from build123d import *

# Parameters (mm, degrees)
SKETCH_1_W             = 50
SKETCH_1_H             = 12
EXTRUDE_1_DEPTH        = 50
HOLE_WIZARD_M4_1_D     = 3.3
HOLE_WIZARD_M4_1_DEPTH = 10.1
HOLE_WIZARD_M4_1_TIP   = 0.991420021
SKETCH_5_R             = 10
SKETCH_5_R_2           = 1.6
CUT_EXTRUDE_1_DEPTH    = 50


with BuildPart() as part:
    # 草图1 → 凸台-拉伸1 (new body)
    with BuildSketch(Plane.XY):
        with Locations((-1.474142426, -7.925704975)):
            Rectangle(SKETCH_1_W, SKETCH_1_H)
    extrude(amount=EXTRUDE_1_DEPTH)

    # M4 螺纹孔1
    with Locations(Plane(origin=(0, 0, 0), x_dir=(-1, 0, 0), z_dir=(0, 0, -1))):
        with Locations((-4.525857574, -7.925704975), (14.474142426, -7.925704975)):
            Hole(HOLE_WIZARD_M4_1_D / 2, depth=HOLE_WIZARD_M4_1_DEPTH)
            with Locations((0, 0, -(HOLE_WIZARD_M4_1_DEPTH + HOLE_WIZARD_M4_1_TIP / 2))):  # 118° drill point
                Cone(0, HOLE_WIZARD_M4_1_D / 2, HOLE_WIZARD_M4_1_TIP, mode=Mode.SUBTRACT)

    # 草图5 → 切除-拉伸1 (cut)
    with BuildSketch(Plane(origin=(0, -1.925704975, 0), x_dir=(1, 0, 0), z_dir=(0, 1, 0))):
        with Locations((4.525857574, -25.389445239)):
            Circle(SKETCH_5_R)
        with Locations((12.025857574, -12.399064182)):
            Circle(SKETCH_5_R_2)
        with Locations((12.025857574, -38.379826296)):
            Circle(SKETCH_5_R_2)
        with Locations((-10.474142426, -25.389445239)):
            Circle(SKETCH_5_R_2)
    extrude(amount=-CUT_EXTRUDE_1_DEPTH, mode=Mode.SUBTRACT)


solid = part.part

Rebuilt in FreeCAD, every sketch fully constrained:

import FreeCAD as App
import Part
import Sketcher
from FreeCAD import Vector


def add_polygon(sketch, points):
    """Adds a closed chain of lines whose ends are joined by coincident constraints."""
    first, n = sketch.GeometryCount, len(points)
    for a, b in zip(points, points[1:] + points[:1]):
        sketch.addGeometry(Part.LineSegment(App.Vector(*a, 0), App.Vector(*b, 0)), False)
    for i in range(n):
        sketch.addConstraint(Sketcher.Constraint("Coincident", first + i, 2, first + (i + 1) % n, 1))

doc = App.newDocument("Part")
body = doc.addObject("PartDesign::Body", "Body")

sketch1 = doc.addObject("Sketcher::SketchObject", "Sketch")
body.addObject(sketch1)
sketch1.AttachmentSupport = (doc.XY_Plane, [""])
sketch1.MapMode = "FlatFace"
add_polygon(sketch1, [(-26, -2), (-26, -14), (24, -14), (24, -2)])
sketch1.addConstraint([
    Sketcher.Constraint("Vertical", 0),
    Sketcher.Constraint("Horizontal", 1),
    Sketcher.Constraint("Vertical", 2),
    Sketcher.Constraint("Horizontal", 3),
    Sketcher.Constraint("DistanceX", 1, 1, 1, 2, 50.0),
    Sketcher.Constraint("DistanceY", 0, 2, 0, 1, 12.0),
    Sketcher.Constraint("DistanceX", 0, 2, -1, 1, 26.474142),
    Sketcher.Constraint("DistanceY", 0, 2, -1, 1, 13.925705),
])
pad1 = doc.addObject("PartDesign::Pad", "Pad")
body.addObject(pad1)
pad1.Profile = sketch1
pad1.Length = 50

sketch2 = doc.addObject("Sketcher::SketchObject", "Sketch001")
body.addObject(sketch2)
sketch2.AttachmentSupport = (doc.XY_Plane, [""])
sketch2.MapMode = "FlatFace"
sketch2.addGeometry([
    Part.Circle(Vector(4.5, -7.9, 0), Vector(0, 0, 1), 1.6),
    Part.Circle(Vector(-14.5, -7.9, 0), Vector(0, 0, 1), 1.6),
], False)
sketch2.addConstraint([
    Sketcher.Constraint("Equal", 0, 1),
    Sketcher.Constraint("Horizontal", 0, 3, 1, 3),
    Sketcher.Constraint("Diameter", 0, 3.3),
    Sketcher.Constraint("DistanceX", 1, 3, 0, 3, 19.0),
    Sketcher.Constraint("DistanceX", -1, 1, 0, 3, 4.525858),
    Sketcher.Constraint("DistanceY", 0, 3, -1, 1, 7.925705),
])
doc.recompute()
hole = doc.addObject("PartDesign::Hole", "Hole")
body.addObject(hole)
hole.Profile = sketch2
hole.ThreadType = "None"
hole.Diameter = 3.3
hole.DepthType = "Dimension"
hole.Depth = 10.1
hole.DrillPoint = "Angled"
hole.DrillPointAngle = 118
hole.Reversed = True

sketch3 = doc.addObject("Sketcher::SketchObject", "Sketch002")
body.addObject(sketch3)
sketch3.AttachmentSupport = (doc.XZ_Plane, [""])
sketch3.MapMode = "FlatFace"
sketch3.AttachmentOffset = App.Placement(Vector(0, 0, 1.925705), App.Rotation())
sketch3.addGeometry([
    Part.Circle(Vector(4.5, 25.4, 0), Vector(0, 0, 1), 10),
    Part.Circle(Vector(12, 12.4, 0), Vector(0, 0, 1), 1.6),
    Part.Circle(Vector(12, 38.4, 0), Vector(0, 0, 1), 1.6),
    Part.Circle(Vector(-10.5, 25.4, 0), Vector(0, 0, 1), 1.6),
], False)
sketch3.addConstraint([
    Sketcher.Constraint("Equal", 1, 2),
    Sketcher.Constraint("Equal", 2, 3),
    Sketcher.Constraint("Horizontal", 0, 3, 3, 3),
    Sketcher.Constraint("Vertical", 1, 3, 2, 3),
    Sketcher.Constraint("Diameter", 0, 20.0),
    Sketcher.Constraint("Diameter", 1, 3.2),
    Sketcher.Constraint("DistanceX", 3, 3, 0, 3, 15.0),
    Sketcher.Constraint("DistanceX", 0, 3, 1, 3, 7.5),
    Sketcher.Constraint("DistanceY", 1, 3, 0, 3, 12.990381),
    Sketcher.Constraint("DistanceY", 0, 3, 2, 3, 12.990381),
    Sketcher.Constraint("DistanceX", -1, 1, 0, 3, 4.525858),
    Sketcher.Constraint("DistanceY", -1, 1, 0, 3, 25.389445),
])
pocket1 = doc.addObject("PartDesign::Pocket", "Pocket")
body.addObject(pocket1)
pocket1.Profile = sketch3
pocket1.Length = 50
pocket1.Reversed = True

doc.recompute()
